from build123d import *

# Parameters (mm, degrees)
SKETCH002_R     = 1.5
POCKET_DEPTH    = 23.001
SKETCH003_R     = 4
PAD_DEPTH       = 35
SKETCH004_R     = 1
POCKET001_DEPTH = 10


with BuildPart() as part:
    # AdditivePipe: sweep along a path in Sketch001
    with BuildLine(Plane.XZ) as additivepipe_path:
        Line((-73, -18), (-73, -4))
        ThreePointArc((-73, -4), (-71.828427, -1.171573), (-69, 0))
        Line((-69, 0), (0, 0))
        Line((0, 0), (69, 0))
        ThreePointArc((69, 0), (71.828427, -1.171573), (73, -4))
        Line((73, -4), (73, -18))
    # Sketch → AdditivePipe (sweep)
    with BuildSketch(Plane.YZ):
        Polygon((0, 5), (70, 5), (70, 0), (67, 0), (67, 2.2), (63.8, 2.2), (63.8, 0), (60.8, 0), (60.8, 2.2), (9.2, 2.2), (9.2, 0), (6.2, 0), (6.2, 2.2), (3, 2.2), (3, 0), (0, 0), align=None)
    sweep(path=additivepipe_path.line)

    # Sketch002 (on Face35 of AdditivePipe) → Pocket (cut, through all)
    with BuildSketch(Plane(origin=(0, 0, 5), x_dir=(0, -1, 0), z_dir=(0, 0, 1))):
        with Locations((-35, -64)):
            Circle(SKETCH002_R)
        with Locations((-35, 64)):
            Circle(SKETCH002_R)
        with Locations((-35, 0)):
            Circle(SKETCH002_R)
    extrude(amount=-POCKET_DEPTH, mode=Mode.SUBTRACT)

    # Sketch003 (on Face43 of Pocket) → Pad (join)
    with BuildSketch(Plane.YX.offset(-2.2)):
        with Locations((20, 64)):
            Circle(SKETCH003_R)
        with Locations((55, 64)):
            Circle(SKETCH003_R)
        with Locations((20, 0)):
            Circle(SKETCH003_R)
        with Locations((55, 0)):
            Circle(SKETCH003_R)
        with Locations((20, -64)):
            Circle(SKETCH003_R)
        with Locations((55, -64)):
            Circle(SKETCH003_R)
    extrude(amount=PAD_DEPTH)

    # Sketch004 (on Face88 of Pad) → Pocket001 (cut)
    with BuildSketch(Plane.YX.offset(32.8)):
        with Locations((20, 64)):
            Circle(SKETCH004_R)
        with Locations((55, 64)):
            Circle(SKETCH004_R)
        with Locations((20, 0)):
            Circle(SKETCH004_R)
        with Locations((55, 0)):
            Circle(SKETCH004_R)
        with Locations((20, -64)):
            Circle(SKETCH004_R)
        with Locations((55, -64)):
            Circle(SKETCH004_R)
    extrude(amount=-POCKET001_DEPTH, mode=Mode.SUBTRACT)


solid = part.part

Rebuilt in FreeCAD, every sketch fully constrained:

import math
import FreeCAD as App
import Part
import Sketcher
Q = App.Units.Quantity


def add_polygon(sketch, points):
    """Adds a closed chain of lines whose ends are joined by coincident constraints."""
    first, n = sketch.GeometryCount, len(points)
    for a, b in zip(points, points[1:] + points[:1]):
        sketch.addGeometry(Part.LineSegment(App.Vector(*a, 0), App.Vector(*b, 0)), False)
    for i in range(n):
        sketch.addConstraint(Sketcher.Constraint("Coincident", first + i, 2, first + (i + 1) % n, 1))

doc = App.newDocument("Part")
body = doc.addObject("PartDesign::Body", "Body")

# Sketch on YZ plane
sketch1 = body.newObject("Sketcher::SketchObject", "Sketch")
sketch1.AttachmentSupport = (doc.getObject("YZ_Plane"), [""])
sketch1.MapMode = "FlatFace"
add_polygon(sketch1, [(70, 5), (0, 5), (0, 0), (3, 0), (3, 2.2), (6.2, 2.2), (6.2, 0), (9.2, 0), (9.2, 2.2), (60.8, 2.2), (60.8, 0), (63.8, 0), (63.8, 2.2), (67, 2.2), (67, 0), (70, 0)])  # lines 0-15
sketch1.addConstraint([
    Sketcher.Constraint("Horizontal", 0),
    Sketcher.Constraint("Vertical", 1),
    Sketcher.Constraint("Horizontal", 2),
    Sketcher.Constraint("Vertical", 3),
    Sketcher.Constraint("Horizontal", 4),
    Sketcher.Constraint("Vertical", 5),
    Sketcher.Constraint("Horizontal", 6),
    Sketcher.Constraint("Vertical", 7),
    Sketcher.Constraint("Horizontal", 8),
    Sketcher.Constraint("Vertical", 9),
    Sketcher.Constraint("Horizontal", 10),
    Sketcher.Constraint("Vertical", 11),
    Sketcher.Constraint("Horizontal", 12),
    Sketcher.Constraint("Vertical", 13),
    Sketcher.Constraint("Horizontal", 14),
    Sketcher.Constraint("Vertical", 15),
    Sketcher.Constraint("Coincident", 1, 2, -1, 1),
    Sketcher.Constraint("PointOnObject", 5, 2, -1),
    Sketcher.Constraint("PointOnObject", 9, 2, -1),
    Sketcher.Constraint("PointOnObject", 13, 2, -1),
    Sketcher.Constraint("Horizontal", 4, 2, 7, 2),
    Sketcher.Constraint("Horizontal", 8, 2, 11, 2),
    Sketcher.Constraint("Equal", 2, 6),
    Sketcher.Constraint("Equal", 6, 10),
    Sketcher.Constraint("Equal", 4, 12),
    Sketcher.Constraint("Equal", 10, 14),
    Sketcher.Constraint("DistanceX", 0, 2, 0, 1, Q("70 mm")),
    Sketcher.Constraint("DistanceX", 2, 1, 2, 2, Q("3 mm")),
    Sketcher.Constraint("DistanceY", 1, 2, 1, 1, Q("5 mm")),
    Sketcher.Constraint("DistanceX", 4, 1, 4, 2, Q("3.2 mm")),
    Sketcher.Constraint("DistanceY", 3, 1, 3, 2, Q("2.2 mm")),
])

# Sketch on XZ plane
sketch2 = body.newObject("Sketcher::SketchObject", "Sketch001")
sketch2.AttachmentSupport = (doc.getObject("XZ_Plane"), [""])
sketch2.MapMode = "FlatFace"
sketch2.addGeometry([
    Part.LineSegment(App.Vector(-73, -18, 0), App.Vector(-73, -4, 0)),  # 0
    Part.ArcOfCircle(Part.Circle(App.Vector(-69, -4, 0), App.Vector(0, 0, 1), 4), math.radians(90), math.radians(180)),  # 1
    Part.LineSegment(App.Vector(-69, 0, 0), App.Vector(69, 0, 0)),  # 2
    Part.ArcOfCircle(Part.Circle(App.Vector(69, -4, 0), App.Vector(0, 0, 1), 4), math.radians(0), math.radians(90)),  # 3
    Part.LineSegment(App.Vector(73, -4, 0), App.Vector(73, -18, 0)),  # 4
], False)
sketch2.addConstraint([
    Sketcher.Constraint("Tangent", 0, 2, 1, 2),
    Sketcher.Constraint("Tangent", 1, 1, 2, 1),
    Sketcher.Constraint("Tangent", 2, 2, 3, 2),
    Sketcher.Constraint("Tangent", 3, 1, 4, 1),
    Sketcher.Constraint("Vertical", 0),
    Sketcher.Constraint("Horizontal", 2),
    Sketcher.Constraint("Vertical", 4),
    Sketcher.Constraint("Equal", 1, 3),
    Sketcher.Constraint("Symmetric", 1, 1, 2, 2, -1, 1),
    Sketcher.Constraint("Horizontal", 0, 1, 4, 2),
    Sketcher.Constraint("Radius", 1, Q("4 mm")),
    Sketcher.Constraint("DistanceX", 2, 1, 2, 2, Q("138 mm")),
    Sketcher.Constraint("DistanceY", 0, 1, 0, 2, Q("14 mm")),
])
doc.recompute()

additivepipe = body.newObject("PartDesign::AdditivePipe", "AdditivePipe")
additivepipe.Profile = sketch1
additivepipe.Spine = (sketch2, ["Edge1", "Edge2", "Edge3", "Edge4", "Edge5"])

# Sketch on XY plane
sketch3 = body.newObject("Sketcher::SketchObject", "Sketch002")
sketch3.AttachmentSupport = (doc.getObject("XY_Plane"), [""])
sketch3.MapMode = "FlatFace"
sketch3.AttachmentOffset = App.Placement(App.Vector(0, 0, 5), App.Rotation())
sketch3.addGeometry([
    Part.Circle(App.Vector(-64, 35, 0), App.Vector(0, 0, 1), 1.5),
    Part.Circle(App.Vector(64, 35, 0), App.Vector(0, 0, 1), 1.5),
    Part.Circle(App.Vector(0, 35, 0), App.Vector(0, 0, 1), 1.5),
], False)
sketch3.addConstraint([
    Sketcher.Constraint("Equal", 0, 1),
    Sketcher.Constraint("Equal", 1, 2),
    Sketcher.Constraint("Symmetric", 0, 3, 1, 3, -2),
    Sketcher.Constraint("PointOnObject", 2, 3, -2),
    Sketcher.Constraint("Horizontal", 1, 3, 2, 3),
    Sketcher.Constraint("Diameter", 0, Q("3 mm")),
    Sketcher.Constraint("DistanceX", 0, 3, -1, 1, Q("64 mm")),
    Sketcher.Constraint("DistanceY", -1, 1, 0, 3, Q("35 mm")),
])
pocket1 = body.newObject("PartDesign::Pocket", "Pocket")
pocket1.Profile = sketch3
pocket1.Type = "ThroughAll"

# Sketch on XY plane
sketch4 = body.newObject("Sketcher::SketchObject", "Sketch003")
sketch4.AttachmentSupport = (doc.getObject("XY_Plane"), [""])
sketch4.MapMode = "FlatFace"
sketch4.AttachmentOffset = App.Placement(App.Vector(0, 0, 2.2), App.Rotation())
sketch4.addGeometry([
    Part.Circle(App.Vector(64, 20, 0), App.Vector(0, 0, 1), 4),  # 0
    Part.Circle(App.Vector(64, 55, 0), App.Vector(0, 0, 1), 4),  # 1
    Part.Circle(App.Vector(0, 20, 0), App.Vector(0, 0, 1), 4),  # 2
    Part.Circle(App.Vector(0, 55, 0), App.Vector(0, 0, 1), 4),  # 3
    Part.Circle(App.Vector(-64, 20, 0), App.Vector(0, 0, 1), 4),  # 4
    Part.Circle(App.Vector(-64, 55, 0), App.Vector(0, 0, 1), 4),  # 5
], False)
sketch4.addConstraint([
    Sketcher.Constraint("Equal", 0, 1),
    Sketcher.Constraint("Equal", 1, 2),
    Sketcher.Constraint("Equal", 2, 3),
    Sketcher.Constraint("Equal", 3, 4),
    Sketcher.Constraint("Equal", 4, 5),
    Sketcher.Constraint("Symmetric", 0, 3, 4, 3, -2),
    Sketcher.Constraint("Symmetric", 1, 3, 5, 3, -2),
    Sketcher.Constraint("PointOnObject", 2, 3, -2),
    Sketcher.Constraint("PointOnObject", 3, 3, -2),
    Sketcher.Constraint("Horizontal", 0, 3, 2, 3),
    Sketcher.Constraint("Horizontal", 1, 3, 3, 3),
    Sketcher.Constraint("Vertical", 0, 3, 1, 3),
    Sketcher.Constraint("Diameter", 0, Q("8 mm")),
    Sketcher.Constraint("DistanceX", -1, 1, 0, 3, Q("64 mm")),
    Sketcher.Constraint("DistanceY", -1, 1, 0, 3, Q("20 mm")),
    Sketcher.Constraint("DistanceY", -1, 1, 1, 3, Q("55 mm")),
])
pad1 = body.newObject("PartDesign::Pad", "Pad")
pad1.Profile = sketch4
pad1.Length = 35
pad1.Reversed = True

# Sketch on XY plane
sketch5 = body.newObject("Sketcher::SketchObject", "Sketch004")
sketch5.AttachmentSupport = (doc.getObject("XY_Plane"), [""])
sketch5.MapMode = "FlatFace"
sketch5.AttachmentOffset = App.Placement(App.Vector(0, 0, -32.8), App.Rotation())
sketch5.addGeometry([
    Part.Circle(App.Vector(64, 20, 0), App.Vector(0, 0, 1), 1),  # 0
    Part.Circle(App.Vector(64, 55, 0), App.Vector(0, 0, 1), 1),  # 1
    Part.Circle(App.Vector(0, 20, 0), App.Vector(0, 0, 1), 1),  # 2
    Part.Circle(App.Vector(0, 55, 0), App.Vector(0, 0, 1), 1),  # 3
    Part.Circle(App.Vector(-64, 20, 0), App.Vector(0, 0, 1), 1),  # 4
    Part.Circle(App.Vector(-64, 55, 0), App.Vector(0, 0, 1), 1),  # 5
], False)
sketch5.addConstraint([
    Sketcher.Constraint("Equal", 0, 1),
    Sketcher.Constraint("Equal", 1, 2),
    Sketcher.Constraint("Equal", 2, 3),
    Sketcher.Constraint("Equal", 3, 4),
    Sketcher.Constraint("Equal", 4, 5),
    Sketcher.Constraint("Symmetric", 0, 3, 4, 3, -2),
    Sketcher.Constraint("Symmetric", 1, 3, 5, 3, -2),
    Sketcher.Constraint("PointOnObject", 2, 3, -2),
    Sketcher.Constraint("PointOnObject", 3, 3, -2),
    Sketcher.Constraint("Horizontal", 0, 3, 2, 3),
    Sketcher.Constraint("Horizontal", 1, 3, 3, 3),
    Sketcher.Constraint("Vertical", 0, 3, 1, 3),
    Sketcher.Constraint("Diameter", 0, Q("2 mm")),
    Sketcher.Constraint("DistanceX", -1, 1, 0, 3, Q("64 mm")),
    Sketcher.Constraint("DistanceY", -1, 1, 0, 3, Q("20 mm")),
    Sketcher.Constraint("DistanceY", -1, 1, 1, 3, Q("55 mm")),
])
pocket2 = body.newObject("PartDesign::Pocket", "Pocket001")
pocket2.Profile = sketch5
pocket2.Length = 10
pocket2.Reversed = True

doc.recompute()
